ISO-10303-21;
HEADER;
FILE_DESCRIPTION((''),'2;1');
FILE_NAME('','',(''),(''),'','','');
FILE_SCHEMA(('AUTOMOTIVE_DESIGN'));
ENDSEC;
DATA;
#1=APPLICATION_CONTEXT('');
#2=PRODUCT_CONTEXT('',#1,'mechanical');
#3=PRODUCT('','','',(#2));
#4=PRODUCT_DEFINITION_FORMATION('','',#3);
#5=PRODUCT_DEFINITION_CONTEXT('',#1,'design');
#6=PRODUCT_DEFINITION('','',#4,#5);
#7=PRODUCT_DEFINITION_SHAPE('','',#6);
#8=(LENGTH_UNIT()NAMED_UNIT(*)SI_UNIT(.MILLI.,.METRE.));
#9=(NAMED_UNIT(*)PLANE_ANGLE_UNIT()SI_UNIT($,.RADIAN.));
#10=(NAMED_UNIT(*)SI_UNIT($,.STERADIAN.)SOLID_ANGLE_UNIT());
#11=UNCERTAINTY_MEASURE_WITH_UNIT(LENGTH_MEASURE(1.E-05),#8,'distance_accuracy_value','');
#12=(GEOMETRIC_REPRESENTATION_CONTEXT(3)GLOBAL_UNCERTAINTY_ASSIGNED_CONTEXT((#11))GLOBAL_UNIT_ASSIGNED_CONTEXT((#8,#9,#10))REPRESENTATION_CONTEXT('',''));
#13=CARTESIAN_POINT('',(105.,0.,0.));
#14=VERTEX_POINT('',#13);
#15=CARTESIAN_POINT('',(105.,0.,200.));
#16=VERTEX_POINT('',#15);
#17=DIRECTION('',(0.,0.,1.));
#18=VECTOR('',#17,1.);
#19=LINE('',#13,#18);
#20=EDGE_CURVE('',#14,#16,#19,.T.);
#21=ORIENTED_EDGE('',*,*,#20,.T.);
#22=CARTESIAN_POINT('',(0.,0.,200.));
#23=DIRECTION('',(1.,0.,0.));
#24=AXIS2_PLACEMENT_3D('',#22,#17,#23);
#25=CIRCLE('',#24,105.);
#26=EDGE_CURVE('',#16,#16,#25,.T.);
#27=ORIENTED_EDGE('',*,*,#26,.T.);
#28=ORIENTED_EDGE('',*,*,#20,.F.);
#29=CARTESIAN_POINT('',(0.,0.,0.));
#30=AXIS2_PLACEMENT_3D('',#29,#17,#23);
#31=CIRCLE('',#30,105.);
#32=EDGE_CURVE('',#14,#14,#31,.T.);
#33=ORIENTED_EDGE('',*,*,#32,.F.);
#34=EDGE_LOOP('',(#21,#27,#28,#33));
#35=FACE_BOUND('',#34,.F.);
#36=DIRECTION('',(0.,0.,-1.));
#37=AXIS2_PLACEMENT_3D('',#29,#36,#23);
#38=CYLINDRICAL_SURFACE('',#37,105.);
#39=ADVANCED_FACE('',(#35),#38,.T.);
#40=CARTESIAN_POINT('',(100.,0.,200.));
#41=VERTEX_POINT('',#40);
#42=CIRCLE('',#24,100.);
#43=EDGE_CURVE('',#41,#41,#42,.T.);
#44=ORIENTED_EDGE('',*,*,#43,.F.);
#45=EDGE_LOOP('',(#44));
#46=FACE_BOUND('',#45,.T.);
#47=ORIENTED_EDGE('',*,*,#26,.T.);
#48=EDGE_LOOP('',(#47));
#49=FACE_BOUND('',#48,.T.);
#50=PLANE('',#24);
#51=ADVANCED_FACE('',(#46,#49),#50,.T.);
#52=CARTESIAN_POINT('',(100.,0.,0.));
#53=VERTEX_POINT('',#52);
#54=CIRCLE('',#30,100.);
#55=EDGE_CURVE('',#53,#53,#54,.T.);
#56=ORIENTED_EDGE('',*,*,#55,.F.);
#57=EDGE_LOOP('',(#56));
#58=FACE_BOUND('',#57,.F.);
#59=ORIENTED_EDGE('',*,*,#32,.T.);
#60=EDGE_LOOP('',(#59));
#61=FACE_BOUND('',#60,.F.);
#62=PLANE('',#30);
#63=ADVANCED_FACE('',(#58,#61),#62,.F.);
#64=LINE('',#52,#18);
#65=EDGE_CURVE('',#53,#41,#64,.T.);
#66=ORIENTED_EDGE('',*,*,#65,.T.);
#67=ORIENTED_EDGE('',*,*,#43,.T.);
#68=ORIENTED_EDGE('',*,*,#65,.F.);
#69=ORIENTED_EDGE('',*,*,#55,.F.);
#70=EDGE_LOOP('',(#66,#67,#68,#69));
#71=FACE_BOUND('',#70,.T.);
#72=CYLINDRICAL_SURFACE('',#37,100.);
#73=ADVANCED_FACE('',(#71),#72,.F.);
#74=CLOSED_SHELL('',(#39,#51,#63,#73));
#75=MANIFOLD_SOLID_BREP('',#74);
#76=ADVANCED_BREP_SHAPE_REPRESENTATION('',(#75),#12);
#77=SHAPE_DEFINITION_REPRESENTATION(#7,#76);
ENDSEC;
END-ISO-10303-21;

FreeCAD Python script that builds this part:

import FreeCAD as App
import Part
import Sketcher
from FreeCAD import Vector
Q = App.Units.Quantity

doc = App.newDocument("Part")
body = doc.addObject("PartDesign::Body", "Body")

sketch1 = doc.addObject("Sketcher::SketchObject", "Sketch")
body.addObject(sketch1)
sketch1.AttachmentSupport = (doc.XY_Plane, [""])
sketch1.MapMode = "FlatFace"
sketch1.addGeometry(Part.Circle(Vector(0, 0, 0), Vector(0, 0, 1), 105), False)
sketch1.addGeometry(Part.Circle(Vector(0, 0, 0), Vector(0, 0, 1), 100), False)
sketch1.addConstraint(Sketcher.Constraint("Coincident", 0, 3, -1, 1))
sketch1.addConstraint(Sketcher.Constraint("Coincident", 1, 3, -1, 1))
sketch1.addConstraint(Sketcher.Constraint("Diameter", 0, Q("210 mm")))
sketch1.addConstraint(Sketcher.Constraint("Diameter", 1, Q("200 mm")))
pad1 = doc.addObject("PartDesign::Pad", "Pad")
body.addObject(pad1)
pad1.Profile = sketch1
pad1.Length = 200

doc.recompute()
